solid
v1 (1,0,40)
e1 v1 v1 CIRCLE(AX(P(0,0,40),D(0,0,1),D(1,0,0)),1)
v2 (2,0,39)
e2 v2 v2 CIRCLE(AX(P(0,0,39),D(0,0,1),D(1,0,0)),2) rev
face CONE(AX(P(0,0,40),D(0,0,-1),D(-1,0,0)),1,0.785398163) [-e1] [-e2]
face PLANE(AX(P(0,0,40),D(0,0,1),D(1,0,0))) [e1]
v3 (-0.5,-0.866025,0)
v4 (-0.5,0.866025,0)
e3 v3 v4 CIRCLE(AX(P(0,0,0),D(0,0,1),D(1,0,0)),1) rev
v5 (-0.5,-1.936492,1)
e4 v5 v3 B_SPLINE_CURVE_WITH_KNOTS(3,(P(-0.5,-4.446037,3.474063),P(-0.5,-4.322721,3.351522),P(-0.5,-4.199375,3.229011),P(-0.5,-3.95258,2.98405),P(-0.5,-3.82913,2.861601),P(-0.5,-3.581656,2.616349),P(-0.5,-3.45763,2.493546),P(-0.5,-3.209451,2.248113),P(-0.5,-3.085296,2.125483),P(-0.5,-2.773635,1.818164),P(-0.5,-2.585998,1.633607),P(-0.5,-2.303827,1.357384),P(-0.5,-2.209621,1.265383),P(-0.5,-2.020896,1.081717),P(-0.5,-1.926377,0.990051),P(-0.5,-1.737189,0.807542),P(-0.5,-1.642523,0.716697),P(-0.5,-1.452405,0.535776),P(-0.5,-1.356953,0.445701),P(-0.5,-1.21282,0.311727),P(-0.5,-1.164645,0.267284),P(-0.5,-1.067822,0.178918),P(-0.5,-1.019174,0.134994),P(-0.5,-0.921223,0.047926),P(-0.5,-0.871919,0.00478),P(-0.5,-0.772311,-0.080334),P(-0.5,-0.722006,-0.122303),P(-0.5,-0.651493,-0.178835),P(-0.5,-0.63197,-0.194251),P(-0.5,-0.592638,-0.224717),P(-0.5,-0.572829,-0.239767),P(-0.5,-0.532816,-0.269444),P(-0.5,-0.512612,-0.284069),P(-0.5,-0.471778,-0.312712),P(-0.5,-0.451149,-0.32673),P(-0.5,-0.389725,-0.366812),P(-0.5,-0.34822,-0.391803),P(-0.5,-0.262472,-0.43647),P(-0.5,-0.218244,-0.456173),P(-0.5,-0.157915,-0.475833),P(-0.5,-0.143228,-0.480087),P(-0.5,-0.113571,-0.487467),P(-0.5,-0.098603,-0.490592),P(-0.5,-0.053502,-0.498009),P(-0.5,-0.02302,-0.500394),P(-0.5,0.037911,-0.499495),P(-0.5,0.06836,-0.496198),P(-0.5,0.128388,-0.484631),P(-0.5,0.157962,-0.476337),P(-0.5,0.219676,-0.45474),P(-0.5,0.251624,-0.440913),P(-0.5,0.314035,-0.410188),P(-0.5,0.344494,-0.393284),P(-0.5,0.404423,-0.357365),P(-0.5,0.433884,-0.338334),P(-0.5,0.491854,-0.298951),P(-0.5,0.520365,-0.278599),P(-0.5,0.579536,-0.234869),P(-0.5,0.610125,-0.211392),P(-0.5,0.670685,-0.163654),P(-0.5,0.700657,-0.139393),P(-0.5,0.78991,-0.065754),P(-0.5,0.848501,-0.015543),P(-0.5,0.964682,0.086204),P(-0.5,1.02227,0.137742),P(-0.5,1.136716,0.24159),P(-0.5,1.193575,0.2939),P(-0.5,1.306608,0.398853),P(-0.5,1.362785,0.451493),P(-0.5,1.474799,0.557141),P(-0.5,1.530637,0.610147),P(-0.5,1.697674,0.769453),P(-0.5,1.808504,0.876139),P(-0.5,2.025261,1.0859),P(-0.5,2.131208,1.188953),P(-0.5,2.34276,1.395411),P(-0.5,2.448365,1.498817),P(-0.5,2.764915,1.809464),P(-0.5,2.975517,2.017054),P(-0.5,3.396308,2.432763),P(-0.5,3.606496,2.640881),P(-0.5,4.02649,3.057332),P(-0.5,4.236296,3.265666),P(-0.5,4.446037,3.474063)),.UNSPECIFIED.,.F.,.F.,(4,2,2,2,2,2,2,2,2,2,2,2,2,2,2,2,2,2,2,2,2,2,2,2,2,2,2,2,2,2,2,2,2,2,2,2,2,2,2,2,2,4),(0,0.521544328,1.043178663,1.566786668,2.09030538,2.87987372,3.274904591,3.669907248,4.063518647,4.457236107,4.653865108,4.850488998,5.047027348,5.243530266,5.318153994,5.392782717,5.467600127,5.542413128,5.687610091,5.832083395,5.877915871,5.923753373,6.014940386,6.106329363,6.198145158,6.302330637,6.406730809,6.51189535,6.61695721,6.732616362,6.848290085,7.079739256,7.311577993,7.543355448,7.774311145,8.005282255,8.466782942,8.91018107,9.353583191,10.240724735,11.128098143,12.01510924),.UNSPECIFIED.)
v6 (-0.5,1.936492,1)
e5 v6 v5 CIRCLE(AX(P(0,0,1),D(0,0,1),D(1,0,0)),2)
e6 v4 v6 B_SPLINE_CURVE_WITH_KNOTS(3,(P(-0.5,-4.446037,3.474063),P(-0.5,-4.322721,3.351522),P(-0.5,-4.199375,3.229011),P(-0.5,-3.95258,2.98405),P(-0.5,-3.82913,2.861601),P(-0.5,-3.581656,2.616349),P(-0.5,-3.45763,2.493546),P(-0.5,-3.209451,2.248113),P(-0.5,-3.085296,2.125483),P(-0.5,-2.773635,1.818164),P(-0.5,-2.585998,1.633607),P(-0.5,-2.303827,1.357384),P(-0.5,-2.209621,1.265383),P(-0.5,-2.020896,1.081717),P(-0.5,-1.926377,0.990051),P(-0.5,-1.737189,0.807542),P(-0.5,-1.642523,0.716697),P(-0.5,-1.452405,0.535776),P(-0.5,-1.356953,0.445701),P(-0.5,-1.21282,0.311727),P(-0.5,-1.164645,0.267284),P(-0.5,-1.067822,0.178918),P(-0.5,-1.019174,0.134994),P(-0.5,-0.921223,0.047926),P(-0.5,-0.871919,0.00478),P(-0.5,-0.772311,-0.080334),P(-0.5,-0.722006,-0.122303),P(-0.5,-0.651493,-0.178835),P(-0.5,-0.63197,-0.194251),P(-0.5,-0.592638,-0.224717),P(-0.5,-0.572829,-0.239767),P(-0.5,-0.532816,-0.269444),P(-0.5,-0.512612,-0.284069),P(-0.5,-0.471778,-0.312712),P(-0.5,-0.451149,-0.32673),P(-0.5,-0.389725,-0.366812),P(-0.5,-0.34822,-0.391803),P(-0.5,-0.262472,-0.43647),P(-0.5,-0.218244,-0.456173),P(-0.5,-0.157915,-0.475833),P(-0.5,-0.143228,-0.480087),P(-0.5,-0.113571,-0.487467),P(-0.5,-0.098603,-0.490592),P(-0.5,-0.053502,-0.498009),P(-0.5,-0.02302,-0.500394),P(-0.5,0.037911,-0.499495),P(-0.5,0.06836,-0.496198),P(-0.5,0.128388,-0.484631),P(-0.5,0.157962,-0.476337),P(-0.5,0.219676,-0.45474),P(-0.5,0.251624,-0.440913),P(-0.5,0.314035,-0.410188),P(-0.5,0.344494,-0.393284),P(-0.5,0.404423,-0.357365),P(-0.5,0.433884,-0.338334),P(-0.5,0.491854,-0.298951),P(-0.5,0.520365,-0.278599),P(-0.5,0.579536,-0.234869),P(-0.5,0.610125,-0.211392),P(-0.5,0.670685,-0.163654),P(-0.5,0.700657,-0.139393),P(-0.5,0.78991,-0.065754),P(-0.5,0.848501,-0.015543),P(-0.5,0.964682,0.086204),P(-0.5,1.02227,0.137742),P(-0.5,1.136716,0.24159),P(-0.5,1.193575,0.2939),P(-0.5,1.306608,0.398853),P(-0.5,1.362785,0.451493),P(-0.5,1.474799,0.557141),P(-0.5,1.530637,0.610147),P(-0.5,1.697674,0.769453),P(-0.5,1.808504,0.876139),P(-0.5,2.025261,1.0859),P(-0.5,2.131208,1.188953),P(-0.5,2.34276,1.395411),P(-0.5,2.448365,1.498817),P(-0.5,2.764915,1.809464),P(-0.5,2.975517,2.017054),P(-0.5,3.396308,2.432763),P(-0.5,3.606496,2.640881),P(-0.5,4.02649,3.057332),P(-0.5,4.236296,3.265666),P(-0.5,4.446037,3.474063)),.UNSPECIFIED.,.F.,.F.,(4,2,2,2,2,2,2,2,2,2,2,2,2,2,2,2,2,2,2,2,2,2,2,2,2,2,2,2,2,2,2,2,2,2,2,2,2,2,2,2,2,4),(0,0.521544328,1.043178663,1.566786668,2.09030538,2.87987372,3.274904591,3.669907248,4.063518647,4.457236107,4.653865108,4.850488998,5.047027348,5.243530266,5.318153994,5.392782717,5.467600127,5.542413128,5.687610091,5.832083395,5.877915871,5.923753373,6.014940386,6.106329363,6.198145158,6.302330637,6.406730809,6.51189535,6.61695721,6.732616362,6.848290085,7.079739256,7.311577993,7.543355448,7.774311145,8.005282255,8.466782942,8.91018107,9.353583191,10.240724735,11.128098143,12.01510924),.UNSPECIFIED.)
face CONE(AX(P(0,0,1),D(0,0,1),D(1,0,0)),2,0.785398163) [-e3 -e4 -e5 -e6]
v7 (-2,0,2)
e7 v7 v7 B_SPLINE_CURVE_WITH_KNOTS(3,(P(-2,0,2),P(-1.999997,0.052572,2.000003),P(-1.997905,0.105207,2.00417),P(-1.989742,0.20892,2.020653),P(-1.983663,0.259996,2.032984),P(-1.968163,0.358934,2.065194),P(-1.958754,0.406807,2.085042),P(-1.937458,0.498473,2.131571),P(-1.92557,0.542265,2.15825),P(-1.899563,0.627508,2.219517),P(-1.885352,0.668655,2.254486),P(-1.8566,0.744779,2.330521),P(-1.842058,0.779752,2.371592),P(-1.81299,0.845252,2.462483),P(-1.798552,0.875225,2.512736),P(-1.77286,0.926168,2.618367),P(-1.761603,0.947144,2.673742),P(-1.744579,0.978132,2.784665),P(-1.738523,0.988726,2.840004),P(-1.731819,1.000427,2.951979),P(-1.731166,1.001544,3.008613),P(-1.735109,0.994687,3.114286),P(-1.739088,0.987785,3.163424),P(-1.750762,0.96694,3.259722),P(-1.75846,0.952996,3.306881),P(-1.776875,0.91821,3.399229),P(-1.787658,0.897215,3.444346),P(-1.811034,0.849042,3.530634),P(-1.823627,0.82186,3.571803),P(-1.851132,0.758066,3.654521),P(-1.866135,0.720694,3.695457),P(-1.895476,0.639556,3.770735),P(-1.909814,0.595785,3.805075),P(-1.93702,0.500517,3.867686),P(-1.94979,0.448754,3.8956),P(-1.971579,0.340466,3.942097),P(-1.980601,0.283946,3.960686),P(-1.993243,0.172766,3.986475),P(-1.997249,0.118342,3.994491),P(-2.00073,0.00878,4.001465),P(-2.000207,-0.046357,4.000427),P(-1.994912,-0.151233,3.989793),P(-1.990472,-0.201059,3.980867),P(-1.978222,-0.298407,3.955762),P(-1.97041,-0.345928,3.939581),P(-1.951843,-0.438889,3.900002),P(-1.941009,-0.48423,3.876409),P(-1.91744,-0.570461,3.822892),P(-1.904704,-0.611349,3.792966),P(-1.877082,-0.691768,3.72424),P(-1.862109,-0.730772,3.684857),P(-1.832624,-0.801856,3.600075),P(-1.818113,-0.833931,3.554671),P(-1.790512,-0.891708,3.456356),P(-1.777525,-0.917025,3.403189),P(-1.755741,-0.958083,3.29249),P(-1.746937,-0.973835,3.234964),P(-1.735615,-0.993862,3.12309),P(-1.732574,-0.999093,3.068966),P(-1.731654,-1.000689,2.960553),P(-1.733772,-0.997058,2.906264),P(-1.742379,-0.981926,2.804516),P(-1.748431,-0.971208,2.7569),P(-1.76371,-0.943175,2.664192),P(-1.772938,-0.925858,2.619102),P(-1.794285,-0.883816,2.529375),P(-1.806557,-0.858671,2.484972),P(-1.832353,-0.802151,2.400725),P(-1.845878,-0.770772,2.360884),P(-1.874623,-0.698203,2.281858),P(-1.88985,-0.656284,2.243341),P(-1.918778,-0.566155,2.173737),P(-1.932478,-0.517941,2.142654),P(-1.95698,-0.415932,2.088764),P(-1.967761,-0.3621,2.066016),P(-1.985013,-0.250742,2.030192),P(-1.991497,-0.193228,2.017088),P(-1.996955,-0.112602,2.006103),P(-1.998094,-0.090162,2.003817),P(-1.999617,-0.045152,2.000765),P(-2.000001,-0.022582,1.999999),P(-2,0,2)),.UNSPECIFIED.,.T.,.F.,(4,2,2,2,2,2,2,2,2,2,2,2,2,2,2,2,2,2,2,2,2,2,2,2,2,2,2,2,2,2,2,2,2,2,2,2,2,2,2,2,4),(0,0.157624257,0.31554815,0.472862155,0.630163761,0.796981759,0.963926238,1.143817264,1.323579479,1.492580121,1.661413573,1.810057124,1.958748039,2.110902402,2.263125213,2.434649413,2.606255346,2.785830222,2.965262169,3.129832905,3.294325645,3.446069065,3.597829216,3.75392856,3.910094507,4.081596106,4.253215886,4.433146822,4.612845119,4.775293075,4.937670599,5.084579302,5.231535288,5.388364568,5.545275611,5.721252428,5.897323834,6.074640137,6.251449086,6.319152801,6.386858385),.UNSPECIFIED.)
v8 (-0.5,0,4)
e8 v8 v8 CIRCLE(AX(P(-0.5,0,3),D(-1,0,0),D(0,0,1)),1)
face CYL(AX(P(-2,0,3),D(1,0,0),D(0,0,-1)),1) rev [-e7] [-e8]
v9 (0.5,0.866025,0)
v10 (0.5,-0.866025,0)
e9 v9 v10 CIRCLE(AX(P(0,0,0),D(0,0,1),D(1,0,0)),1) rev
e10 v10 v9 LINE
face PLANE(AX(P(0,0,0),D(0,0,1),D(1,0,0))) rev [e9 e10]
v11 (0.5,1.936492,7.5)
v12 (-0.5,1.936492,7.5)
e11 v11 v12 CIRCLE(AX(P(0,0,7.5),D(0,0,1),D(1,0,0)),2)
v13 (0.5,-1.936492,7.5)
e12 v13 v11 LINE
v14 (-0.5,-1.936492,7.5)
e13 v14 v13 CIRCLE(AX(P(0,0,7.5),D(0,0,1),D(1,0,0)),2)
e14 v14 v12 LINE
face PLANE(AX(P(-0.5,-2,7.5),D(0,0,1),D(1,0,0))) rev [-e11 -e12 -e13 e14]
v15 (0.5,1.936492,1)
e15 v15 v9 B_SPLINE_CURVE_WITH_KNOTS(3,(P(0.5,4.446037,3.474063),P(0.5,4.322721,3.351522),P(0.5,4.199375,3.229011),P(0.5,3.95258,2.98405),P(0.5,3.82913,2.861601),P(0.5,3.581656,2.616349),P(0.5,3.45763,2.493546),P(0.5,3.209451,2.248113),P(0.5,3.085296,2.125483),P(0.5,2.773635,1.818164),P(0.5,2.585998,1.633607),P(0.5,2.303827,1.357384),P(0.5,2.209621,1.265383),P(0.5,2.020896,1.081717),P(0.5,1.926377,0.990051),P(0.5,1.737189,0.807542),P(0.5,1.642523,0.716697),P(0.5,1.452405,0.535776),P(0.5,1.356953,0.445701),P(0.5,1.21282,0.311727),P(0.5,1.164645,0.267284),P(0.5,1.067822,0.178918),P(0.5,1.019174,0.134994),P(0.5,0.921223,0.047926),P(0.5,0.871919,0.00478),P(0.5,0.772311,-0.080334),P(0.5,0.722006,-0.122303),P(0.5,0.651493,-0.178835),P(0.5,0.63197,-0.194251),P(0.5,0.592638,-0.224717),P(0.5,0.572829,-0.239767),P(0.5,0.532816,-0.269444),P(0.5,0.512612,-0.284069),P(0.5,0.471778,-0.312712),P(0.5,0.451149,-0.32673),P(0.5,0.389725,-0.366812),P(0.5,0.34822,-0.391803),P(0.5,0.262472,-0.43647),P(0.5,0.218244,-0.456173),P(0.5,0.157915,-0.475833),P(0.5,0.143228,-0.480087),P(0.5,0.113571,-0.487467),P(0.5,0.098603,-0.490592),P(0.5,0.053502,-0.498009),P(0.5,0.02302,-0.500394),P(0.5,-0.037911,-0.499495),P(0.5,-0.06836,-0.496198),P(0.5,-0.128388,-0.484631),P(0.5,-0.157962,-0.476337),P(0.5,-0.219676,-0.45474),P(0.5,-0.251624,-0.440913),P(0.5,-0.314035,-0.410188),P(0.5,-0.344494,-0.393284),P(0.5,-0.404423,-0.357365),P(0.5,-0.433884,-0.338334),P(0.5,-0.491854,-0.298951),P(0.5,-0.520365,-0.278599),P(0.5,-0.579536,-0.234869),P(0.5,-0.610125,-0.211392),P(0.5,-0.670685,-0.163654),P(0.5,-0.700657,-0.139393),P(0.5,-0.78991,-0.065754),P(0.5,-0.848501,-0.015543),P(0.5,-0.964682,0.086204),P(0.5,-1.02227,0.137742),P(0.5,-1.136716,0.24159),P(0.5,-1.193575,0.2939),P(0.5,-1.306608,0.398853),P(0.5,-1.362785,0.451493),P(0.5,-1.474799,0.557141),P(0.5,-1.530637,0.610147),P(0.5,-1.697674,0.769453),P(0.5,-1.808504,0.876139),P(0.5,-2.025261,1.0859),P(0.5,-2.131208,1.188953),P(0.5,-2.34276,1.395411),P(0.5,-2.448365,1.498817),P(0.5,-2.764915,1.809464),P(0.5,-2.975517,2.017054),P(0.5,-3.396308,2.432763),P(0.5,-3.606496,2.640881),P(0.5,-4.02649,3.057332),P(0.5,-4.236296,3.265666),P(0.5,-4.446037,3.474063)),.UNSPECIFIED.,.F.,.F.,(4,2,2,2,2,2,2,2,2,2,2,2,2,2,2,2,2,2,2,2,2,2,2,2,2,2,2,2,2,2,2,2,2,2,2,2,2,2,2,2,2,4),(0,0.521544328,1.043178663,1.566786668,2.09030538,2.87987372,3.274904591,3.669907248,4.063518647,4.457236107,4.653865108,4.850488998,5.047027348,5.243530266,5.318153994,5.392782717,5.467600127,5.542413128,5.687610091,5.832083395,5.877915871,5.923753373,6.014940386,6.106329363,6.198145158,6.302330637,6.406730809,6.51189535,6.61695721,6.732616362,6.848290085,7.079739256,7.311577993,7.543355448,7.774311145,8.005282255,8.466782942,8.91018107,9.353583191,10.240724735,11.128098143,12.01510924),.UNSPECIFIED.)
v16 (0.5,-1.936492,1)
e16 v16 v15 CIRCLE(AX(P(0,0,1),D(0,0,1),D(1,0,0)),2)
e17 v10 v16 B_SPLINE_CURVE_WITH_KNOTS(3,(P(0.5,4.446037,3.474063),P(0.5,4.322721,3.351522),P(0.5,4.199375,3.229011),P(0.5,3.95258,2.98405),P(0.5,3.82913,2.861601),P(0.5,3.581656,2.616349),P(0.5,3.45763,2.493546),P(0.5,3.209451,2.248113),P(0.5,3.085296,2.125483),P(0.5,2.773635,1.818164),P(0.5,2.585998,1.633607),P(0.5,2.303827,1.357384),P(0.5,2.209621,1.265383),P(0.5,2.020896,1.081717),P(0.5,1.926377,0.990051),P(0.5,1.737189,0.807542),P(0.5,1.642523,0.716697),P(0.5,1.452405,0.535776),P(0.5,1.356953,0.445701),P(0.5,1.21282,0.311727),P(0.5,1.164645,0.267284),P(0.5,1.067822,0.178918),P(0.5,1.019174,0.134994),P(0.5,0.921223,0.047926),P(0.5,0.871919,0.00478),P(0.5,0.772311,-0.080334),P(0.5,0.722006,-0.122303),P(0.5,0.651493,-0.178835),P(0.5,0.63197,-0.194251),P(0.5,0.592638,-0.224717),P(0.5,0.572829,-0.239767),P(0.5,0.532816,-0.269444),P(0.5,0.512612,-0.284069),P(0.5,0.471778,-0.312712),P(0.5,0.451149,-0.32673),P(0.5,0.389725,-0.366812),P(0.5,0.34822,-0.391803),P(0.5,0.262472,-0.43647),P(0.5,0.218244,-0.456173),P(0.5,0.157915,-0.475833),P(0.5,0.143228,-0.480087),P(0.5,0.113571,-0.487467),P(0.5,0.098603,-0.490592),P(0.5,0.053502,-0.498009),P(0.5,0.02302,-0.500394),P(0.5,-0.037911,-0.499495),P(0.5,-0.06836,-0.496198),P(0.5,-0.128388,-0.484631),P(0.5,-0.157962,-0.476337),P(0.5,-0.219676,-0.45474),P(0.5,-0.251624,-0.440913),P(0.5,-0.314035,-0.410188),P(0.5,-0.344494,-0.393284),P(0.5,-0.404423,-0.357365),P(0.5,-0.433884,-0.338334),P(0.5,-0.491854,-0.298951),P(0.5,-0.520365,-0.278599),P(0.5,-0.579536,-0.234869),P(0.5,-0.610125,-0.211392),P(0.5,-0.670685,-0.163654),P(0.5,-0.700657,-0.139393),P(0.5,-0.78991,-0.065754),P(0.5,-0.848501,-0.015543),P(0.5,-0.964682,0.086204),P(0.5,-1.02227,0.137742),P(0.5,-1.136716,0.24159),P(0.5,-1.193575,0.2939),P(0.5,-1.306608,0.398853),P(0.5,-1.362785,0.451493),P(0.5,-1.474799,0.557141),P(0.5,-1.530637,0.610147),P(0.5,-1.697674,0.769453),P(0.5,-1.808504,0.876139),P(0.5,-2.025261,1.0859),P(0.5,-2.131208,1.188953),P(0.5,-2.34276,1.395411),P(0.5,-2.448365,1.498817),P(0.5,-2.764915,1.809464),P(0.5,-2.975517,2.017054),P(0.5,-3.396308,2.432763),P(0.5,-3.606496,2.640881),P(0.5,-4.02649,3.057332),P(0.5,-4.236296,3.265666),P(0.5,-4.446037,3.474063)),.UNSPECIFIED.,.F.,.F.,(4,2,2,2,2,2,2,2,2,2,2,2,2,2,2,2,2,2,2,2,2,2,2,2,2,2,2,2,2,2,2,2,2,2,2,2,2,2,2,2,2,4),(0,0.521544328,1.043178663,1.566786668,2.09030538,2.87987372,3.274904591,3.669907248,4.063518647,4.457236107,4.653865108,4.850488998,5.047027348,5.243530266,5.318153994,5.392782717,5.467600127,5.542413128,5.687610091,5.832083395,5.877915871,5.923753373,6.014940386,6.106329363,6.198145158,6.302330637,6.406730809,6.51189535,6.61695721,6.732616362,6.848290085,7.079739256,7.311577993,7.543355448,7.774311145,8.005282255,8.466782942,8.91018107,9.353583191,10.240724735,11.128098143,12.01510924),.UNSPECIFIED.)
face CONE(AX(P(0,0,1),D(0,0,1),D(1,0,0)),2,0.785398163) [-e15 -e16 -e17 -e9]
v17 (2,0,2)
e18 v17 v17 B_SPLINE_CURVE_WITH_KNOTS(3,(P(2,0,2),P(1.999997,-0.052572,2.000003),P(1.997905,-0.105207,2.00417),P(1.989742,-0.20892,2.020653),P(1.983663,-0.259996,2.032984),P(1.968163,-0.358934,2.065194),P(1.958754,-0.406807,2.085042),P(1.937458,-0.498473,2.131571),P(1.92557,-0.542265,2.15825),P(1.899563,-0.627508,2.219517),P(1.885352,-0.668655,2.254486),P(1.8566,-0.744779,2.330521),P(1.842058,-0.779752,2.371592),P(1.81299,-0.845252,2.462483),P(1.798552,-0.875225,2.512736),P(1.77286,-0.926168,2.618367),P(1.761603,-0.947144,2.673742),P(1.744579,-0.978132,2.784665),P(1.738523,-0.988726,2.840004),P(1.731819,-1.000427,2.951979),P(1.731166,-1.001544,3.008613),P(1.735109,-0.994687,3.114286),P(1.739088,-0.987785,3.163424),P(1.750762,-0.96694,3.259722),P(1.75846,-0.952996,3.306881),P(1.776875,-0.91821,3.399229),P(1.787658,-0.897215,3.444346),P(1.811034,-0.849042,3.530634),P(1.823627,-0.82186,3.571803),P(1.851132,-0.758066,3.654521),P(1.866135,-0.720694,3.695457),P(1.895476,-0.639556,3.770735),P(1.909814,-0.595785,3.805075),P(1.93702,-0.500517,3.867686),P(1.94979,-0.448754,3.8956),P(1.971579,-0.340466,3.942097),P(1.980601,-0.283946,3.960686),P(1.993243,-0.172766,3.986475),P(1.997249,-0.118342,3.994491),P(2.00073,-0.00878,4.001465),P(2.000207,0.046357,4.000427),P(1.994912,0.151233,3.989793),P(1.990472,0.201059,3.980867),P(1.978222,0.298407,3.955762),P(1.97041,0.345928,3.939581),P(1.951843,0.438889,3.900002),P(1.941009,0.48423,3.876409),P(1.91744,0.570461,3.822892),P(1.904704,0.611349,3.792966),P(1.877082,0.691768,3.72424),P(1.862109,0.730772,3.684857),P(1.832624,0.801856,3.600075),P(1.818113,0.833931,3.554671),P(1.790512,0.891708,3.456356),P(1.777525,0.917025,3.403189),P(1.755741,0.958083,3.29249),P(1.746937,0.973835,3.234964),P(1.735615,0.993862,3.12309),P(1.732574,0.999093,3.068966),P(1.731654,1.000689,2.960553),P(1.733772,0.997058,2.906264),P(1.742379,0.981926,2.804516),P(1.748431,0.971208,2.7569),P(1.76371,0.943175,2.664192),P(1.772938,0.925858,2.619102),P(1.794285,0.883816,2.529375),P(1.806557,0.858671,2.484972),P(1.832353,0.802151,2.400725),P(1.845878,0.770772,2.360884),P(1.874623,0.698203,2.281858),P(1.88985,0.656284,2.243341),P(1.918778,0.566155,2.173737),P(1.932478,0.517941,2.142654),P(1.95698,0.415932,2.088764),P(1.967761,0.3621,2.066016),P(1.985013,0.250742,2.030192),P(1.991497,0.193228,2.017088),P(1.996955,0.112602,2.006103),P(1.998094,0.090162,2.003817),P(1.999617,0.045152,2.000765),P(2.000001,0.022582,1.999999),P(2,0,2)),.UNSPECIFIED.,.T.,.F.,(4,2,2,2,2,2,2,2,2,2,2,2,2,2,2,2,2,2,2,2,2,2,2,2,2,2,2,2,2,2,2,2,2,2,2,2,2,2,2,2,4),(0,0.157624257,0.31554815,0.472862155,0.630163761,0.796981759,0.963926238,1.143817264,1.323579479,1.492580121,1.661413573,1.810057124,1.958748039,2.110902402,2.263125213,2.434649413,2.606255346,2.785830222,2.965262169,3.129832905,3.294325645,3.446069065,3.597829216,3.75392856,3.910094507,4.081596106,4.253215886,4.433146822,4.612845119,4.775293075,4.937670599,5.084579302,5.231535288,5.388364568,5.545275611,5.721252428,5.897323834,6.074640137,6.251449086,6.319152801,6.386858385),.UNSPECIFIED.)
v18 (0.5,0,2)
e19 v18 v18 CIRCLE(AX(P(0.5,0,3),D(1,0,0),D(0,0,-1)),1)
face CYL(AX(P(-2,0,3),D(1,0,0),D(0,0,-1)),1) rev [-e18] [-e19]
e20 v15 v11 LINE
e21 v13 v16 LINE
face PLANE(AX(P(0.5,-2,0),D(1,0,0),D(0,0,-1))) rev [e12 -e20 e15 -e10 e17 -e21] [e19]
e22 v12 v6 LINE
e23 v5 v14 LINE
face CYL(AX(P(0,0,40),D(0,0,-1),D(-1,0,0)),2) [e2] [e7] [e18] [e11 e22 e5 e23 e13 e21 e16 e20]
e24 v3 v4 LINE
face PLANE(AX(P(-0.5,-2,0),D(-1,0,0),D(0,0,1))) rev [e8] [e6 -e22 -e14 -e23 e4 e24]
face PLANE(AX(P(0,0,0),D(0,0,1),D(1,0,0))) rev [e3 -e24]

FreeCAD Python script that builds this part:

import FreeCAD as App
import Part
import Sketcher
Q = App.Units.Quantity


def edges_at(feature, points):
    """Names of the edges that pass closest to the given points."""
    edges = feature.Shape.Edges
    near = lambda p: min(range(len(edges)), key=lambda i: edges[i].distToShape(Part.Vertex(*p))[0])
    return sorted({f"Edge{near(p) + 1}" for p in points})

doc = App.newDocument("Part")
body = doc.addObject("PartDesign::Body", "Body")

sketch1 = doc.addObject("Sketcher::SketchObject", "Sketch")
body.addObject(sketch1)
sketch1.AttachmentSupport = (doc.XY_Plane, [""])
sketch1.MapMode = "FlatFace"
sketch1.addGeometry(Part.Circle(App.Vector(0, 0, 0), App.Vector(0, 0, 1), 2), False)
sketch1.addConstraint(Sketcher.Constraint("Coincident", 0, 3, -1, 1))
sketch1.addConstraint(Sketcher.Constraint("Diameter", 0, Q("4 mm")))
pad1 = doc.addObject("PartDesign::Pad", "Pad")
body.addObject(pad1)
pad1.Profile = sketch1
pad1.Length = 40
doc.recompute()

chamfer = doc.addObject("PartDesign::Chamfer", "Chamfer")
body.addObject(chamfer)
chamfer.Base = (pad1, edges_at(pad1, [(-2, 0, 0), (-2, 0, 40)]))
chamfer.Size = 1

sketch2 = doc.addObject("Sketcher::SketchObject", "Sketch001")
body.addObject(sketch2)
sketch2.AttachmentSupport = (doc.XZ_Plane, [""])
sketch2.MapMode = "FlatFace"
sketch2.addGeometry(Part.LineSegment(App.Vector(-0.5, 0, 0), App.Vector(-0.5, 7.5, 0)), False)
sketch2.addGeometry(Part.LineSegment(App.Vector(-0.5, 7.5, 0), App.Vector(0.5, 7.5, 0)), False)
sketch2.addGeometry(Part.LineSegment(App.Vector(0.5, 7.5, 0), App.Vector(0.5, 0, 0)), False)
sketch2.addGeometry(Part.LineSegment(App.Vector(0.5, 0, 0), App.Vector(-0.5, 0, 0)), False)
sketch2.addConstraint(Sketcher.Constraint("Coincident", 0, 2, 1, 1))
sketch2.addConstraint(Sketcher.Constraint("Coincident", 1, 2, 2, 1))
sketch2.addConstraint(Sketcher.Constraint("Coincident", 2, 2, 3, 1))
sketch2.addConstraint(Sketcher.Constraint("Coincident", 3, 2, 0, 1))
sketch2.addConstraint(Sketcher.Constraint("Vertical", 0))
sketch2.addConstraint(Sketcher.Constraint("Horizontal", 1))
sketch2.addConstraint(Sketcher.Constraint("Vertical", 2))
sketch2.addConstraint(Sketcher.Constraint("Horizontal", 3))
sketch2.addConstraint(Sketcher.Constraint("Symmetric", 2, 2, 3, 2, -1, 1))
sketch2.addConstraint(Sketcher.Constraint("DistanceX", 1, 1, 1, 2, Q("1 mm")))
sketch2.addConstraint(Sketcher.Constraint("DistanceY", 0, 1, 0, 2, Q("7.5 mm")))
pocket1 = doc.addObject("PartDesign::Pocket", "Pocket")
body.addObject(pocket1)
pocket1.Profile = sketch2
pocket1.Type = "ThroughAll"
pocket1.Midplane = True

sketch3 = doc.addObject("Sketcher::SketchObject", "Sketch002")
body.addObject(sketch3)
sketch3.AttachmentSupport = (doc.YZ_Plane, [""])
sketch3.MapMode = "FlatFace"
sketch3.addGeometry(Part.Circle(App.Vector(0, 3, 0), App.Vector(0, 0, 1), 1), False)
sketch3.addConstraint(Sketcher.Constraint("PointOnObject", 0, 3, -2))
sketch3.addConstraint(Sketcher.Constraint("Diameter", 0, Q("2 mm")))
sketch3.addConstraint(Sketcher.Constraint("DistanceY", -1, 1, 0, 3, Q("3 mm")))
pocket2 = doc.addObject("PartDesign::Pocket", "Pocket001")
body.addObject(pocket2)
pocket2.Profile = sketch3
pocket2.Type = "ThroughAll"
pocket2.Midplane = True

doc.recompute()
